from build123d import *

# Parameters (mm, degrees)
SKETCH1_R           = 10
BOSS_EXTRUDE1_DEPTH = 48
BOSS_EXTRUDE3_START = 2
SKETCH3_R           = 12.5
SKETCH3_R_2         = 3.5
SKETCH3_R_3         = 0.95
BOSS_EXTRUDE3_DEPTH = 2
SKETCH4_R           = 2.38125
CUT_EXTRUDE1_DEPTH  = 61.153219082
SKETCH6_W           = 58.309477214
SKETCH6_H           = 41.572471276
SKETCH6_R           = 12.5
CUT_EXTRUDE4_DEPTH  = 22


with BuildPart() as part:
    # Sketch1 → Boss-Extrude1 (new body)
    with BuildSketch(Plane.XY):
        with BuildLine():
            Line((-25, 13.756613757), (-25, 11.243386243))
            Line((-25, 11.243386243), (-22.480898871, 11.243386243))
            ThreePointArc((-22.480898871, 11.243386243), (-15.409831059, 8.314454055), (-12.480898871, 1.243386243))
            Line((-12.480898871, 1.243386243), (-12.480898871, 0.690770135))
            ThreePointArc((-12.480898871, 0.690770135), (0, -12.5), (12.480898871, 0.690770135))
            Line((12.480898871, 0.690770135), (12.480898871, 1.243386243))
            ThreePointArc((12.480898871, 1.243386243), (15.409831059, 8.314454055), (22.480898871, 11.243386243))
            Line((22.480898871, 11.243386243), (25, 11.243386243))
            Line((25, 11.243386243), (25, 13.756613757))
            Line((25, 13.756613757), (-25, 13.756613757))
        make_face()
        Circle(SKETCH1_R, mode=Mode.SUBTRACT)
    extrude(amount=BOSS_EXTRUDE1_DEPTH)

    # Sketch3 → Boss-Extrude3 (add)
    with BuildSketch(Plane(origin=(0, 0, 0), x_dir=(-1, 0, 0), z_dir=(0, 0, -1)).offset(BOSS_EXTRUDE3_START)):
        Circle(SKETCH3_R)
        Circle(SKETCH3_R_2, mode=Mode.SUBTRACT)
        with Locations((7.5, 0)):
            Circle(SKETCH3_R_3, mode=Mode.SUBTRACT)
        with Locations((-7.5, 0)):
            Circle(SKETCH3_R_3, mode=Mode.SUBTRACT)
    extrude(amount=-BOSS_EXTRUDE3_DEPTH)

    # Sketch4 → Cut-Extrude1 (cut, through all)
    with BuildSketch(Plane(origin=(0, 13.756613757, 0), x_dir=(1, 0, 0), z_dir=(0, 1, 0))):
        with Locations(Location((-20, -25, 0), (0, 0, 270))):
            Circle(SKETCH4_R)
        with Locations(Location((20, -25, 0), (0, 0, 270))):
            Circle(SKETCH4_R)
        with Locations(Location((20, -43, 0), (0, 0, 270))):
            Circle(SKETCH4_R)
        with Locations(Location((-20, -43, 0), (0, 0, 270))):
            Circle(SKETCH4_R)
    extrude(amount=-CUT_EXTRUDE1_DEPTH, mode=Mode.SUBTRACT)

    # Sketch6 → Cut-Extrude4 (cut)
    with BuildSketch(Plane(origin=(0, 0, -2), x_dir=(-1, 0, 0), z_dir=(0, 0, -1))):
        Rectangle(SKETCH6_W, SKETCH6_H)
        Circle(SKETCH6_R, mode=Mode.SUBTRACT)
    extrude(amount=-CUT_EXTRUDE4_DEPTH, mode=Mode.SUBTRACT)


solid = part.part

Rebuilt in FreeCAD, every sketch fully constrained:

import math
import FreeCAD as App
import Part
import Sketcher
from FreeCAD import Vector
Q = App.Units.Quantity


def add_polygon(sketch, points):
    """Adds a closed chain of lines whose ends are joined by coincident constraints."""
    first, n = sketch.GeometryCount, len(points)
    for a, b in zip(points, points[1:] + points[:1]):
        sketch.addGeometry(Part.LineSegment(App.Vector(*a, 0), App.Vector(*b, 0)), False)
    for i in range(n):
        sketch.addConstraint(Sketcher.Constraint("Coincident", first + i, 2, first + (i + 1) % n, 1))

doc = App.newDocument("Part")
body = doc.addObject("PartDesign::Body", "Body")

sketch1 = body.newObject("Sketcher::SketchObject", "Sketch")
sketch1.AttachmentSupport = (doc.getObject("XY_Plane"), [""])
sketch1.MapMode = "FlatFace"
sketch1.addGeometry(Part.LineSegment(Vector(-25, 13.8, 0), Vector(-25, 11.2, 0)), False)
sketch1.addGeometry(Part.LineSegment(Vector(-25, 11.2, 0), Vector(-22.5, 11.2, 0)), False)
sketch1.addGeometry(Part.ArcOfCircle(Part.Circle(Vector(-22.5, 1.2, 0), Vector(0, 0, 1), 10), math.radians(0), math.radians(90)), False)
sketch1.addGeometry(Part.LineSegment(Vector(-12.5, 1.2, 0), Vector(-12.5, 0.7, 0)), False)
sketch1.addGeometry(Part.ArcOfCircle(Part.Circle(Vector(0, 0, 0), Vector(0, 0, 1), 12.5), math.radians(177), math.radians(363)), False)
sketch1.addGeometry(Part.LineSegment(Vector(12.5, 0.7, 0), Vector(12.5, 1.2, 0)), False)
sketch1.addGeometry(Part.ArcOfCircle(Part.Circle(Vector(22.5, 1.2, 0), Vector(0, 0, 1), 10), math.radians(90), math.radians(180)), False)
sketch1.addGeometry(Part.LineSegment(Vector(22.5, 11.2, 0), Vector(25, 11.2, 0)), False)
sketch1.addGeometry(Part.LineSegment(Vector(25, 11.2, 0), Vector(25, 13.8, 0)), False)
sketch1.addGeometry(Part.LineSegment(Vector(25, 13.8, 0), Vector(-25, 13.8, 0)), False)
sketch1.addGeometry(Part.Circle(Vector(0, 0, 0), Vector(0, 0, 1), 10), False)
sketch1.addConstraint(Sketcher.Constraint("Coincident", 0, 2, 1, 1))
sketch1.addConstraint(Sketcher.Constraint("Tangent", 1, 2, 2, 2))
sketch1.addConstraint(Sketcher.Constraint("Tangent", 2, 1, 3, 1))
sketch1.addConstraint(Sketcher.Constraint("Coincident", 3, 2, 4, 1))
sketch1.addConstraint(Sketcher.Constraint("Coincident", 4, 2, 5, 1))
sketch1.addConstraint(Sketcher.Constraint("Tangent", 5, 2, 6, 2))
sketch1.addConstraint(Sketcher.Constraint("Tangent", 6, 1, 7, 1))
sketch1.addConstraint(Sketcher.Constraint("Coincident", 7, 2, 8, 1))
sketch1.addConstraint(Sketcher.Constraint("Coincident", 8, 2, 9, 1))
sketch1.addConstraint(Sketcher.Constraint("Coincident", 9, 2, 0, 1))
sketch1.addConstraint(Sketcher.Constraint("Vertical", 0))
sketch1.addConstraint(Sketcher.Constraint("Horizontal", 1))
sketch1.addConstraint(Sketcher.Constraint("Vertical", 3))
sketch1.addConstraint(Sketcher.Constraint("Vertical", 5))
sketch1.addConstraint(Sketcher.Constraint("Horizontal", 7))
sketch1.addConstraint(Sketcher.Constraint("Vertical", 8))
sketch1.addConstraint(Sketcher.Constraint("Horizontal", 9))
sketch1.addConstraint(Sketcher.Constraint("Coincident", 4, 3, -1, 1))
sketch1.addConstraint(Sketcher.Constraint("Coincident", 10, 3, -1, 1))
sketch1.addConstraint(Sketcher.Constraint("Equal", 2, 6))
sketch1.addConstraint(Sketcher.Constraint("Equal", 6, 10))
sketch1.addConstraint(Sketcher.Constraint("Symmetric", 2, 3, 6, 3, -2))
sketch1.addConstraint(Sketcher.Constraint("Equal", 1, 7))
sketch1.addConstraint(Sketcher.Constraint("Diameter", 10, Q("20 mm")))
sketch1.addConstraint(Sketcher.Constraint("Radius", 4, Q("12.5 mm")))
sketch1.addConstraint(Sketcher.Constraint("DistanceX", 9, 2, 9, 1, Q("50 mm")))
sketch1.addConstraint(Sketcher.Constraint("DistanceX", 1, 1, 1, 2, Q("2.519101 mm")))
sketch1.addConstraint(Sketcher.Constraint("DistanceY", 0, 2, 0, 1, Q("2.513228 mm")))
sketch1.addConstraint(Sketcher.Constraint("DistanceY", 3, 2, 3, 1, Q("0.552616 mm")))
pad1 = body.newObject("PartDesign::Pad", "Pad")
pad1.Profile = sketch1
pad1.Length = 48

sketch2 = body.newObject("Sketcher::SketchObject", "Sketch001")
sketch2.AttachmentSupport = (doc.getObject("XY_Plane"), [""])
sketch2.MapMode = "FlatFace"
sketch2.AttachmentOffset = App.Placement(Vector(0, 0, -2), App.Rotation())
sketch2.addGeometry(Part.Circle(Vector(0, 0, 0), Vector(0, 0, 1), 12.5), False)
sketch2.addGeometry(Part.Circle(Vector(7.5, 0, 0), Vector(0, 0, 1), 0.9), False)
sketch2.addGeometry(Part.Circle(Vector(0, 0, 0), Vector(0, 0, 1), 3.5), False)
sketch2.addGeometry(Part.Circle(Vector(-7.5, 0, 0), Vector(0, 0, 1), 0.9), False)
sketch2.addConstraint(Sketcher.Constraint("Coincident", 0, 3, -1, 1))
sketch2.addConstraint(Sketcher.Constraint("Coincident", 2, 3, -1, 1))
sketch2.addConstraint(Sketcher.Constraint("Equal", 1, 3))
sketch2.addConstraint(Sketcher.Constraint("Symmetric", 1, 3, 3, 3, -1, 1))
sketch2.addConstraint(Sketcher.Constraint("PointOnObject", 1, 3, -1))
sketch2.addConstraint(Sketcher.Constraint("Diameter", 0, Q("25 mm")))
sketch2.addConstraint(Sketcher.Constraint("Diameter", 2, Q("7 mm")))
sketch2.addConstraint(Sketcher.Constraint("Diameter", 1, Q("1.9 mm")))
sketch2.addConstraint(Sketcher.Constraint("DistanceX", 3, 3, 1, 3, Q("15 mm")))
pad2 = body.newObject("PartDesign::Pad", "Pad001")
pad2.Profile = sketch2
pad2.Length = 2

sketch3 = body.newObject("Sketcher::SketchObject", "Sketch002")
sketch3.AttachmentSupport = (doc.getObject("XZ_Plane"), [""])
sketch3.MapMode = "FlatFace"
sketch3.AttachmentOffset = App.Placement(Vector(0, 0, -13.756614), App.Rotation())
sketch3.addGeometry(Part.Circle(Vector(-20, 25, 0), Vector(0, 0, 1), 2.4), False)
sketch3.addGeometry(Part.Circle(Vector(20, 25, 0), Vector(0, 0, 1), 2.4), False)
sketch3.addGeometry(Part.Circle(Vector(20, 43, 0), Vector(0, 0, 1), 2.4), False)
sketch3.addGeometry(Part.Circle(Vector(-20, 43, 0), Vector(0, 0, 1), 2.4), False)
sketch3.addConstraint(Sketcher.Constraint("Equal", 0, 1))
sketch3.addConstraint(Sketcher.Constraint("Equal", 1, 2))
sketch3.addConstraint(Sketcher.Constraint("Equal", 2, 3))
sketch3.addConstraint(Sketcher.Constraint("Symmetric", 0, 3, 1, 3, -2))
sketch3.addConstraint(Sketcher.Constraint("Symmetric", 2, 3, 3, 3, -2))
sketch3.addConstraint(Sketcher.Constraint("Vertical", 1, 3, 2, 3))
sketch3.addConstraint(Sketcher.Constraint("DistanceX", 0, 3, -1, 1, Q("20 mm")))
sketch3.addConstraint(Sketcher.Constraint("DistanceY", -1, 1, 0, 3, Q("25 mm")))
sketch3.addConstraint(Sketcher.Constraint("DistanceY", -1, 1, 2, 3, Q("43 mm")))
sketch3.addConstraint(Sketcher.Constraint("Diameter", 0, Q("4.7625 mm")))
pocket1 = body.newObject("PartDesign::Pocket", "Pocket")
pocket1.Profile = sketch3
pocket1.Type = "ThroughAll"
pocket1.Reversed = True

sketch4 = body.newObject("Sketcher::SketchObject", "Sketch003")
sketch4.AttachmentSupport = (doc.getObject("XY_Plane"), [""])
sketch4.MapMode = "FlatFace"
sketch4.AttachmentOffset = App.Placement(Vector(0, 0, -2), App.Rotation())
add_polygon(sketch4, [(29, 21), (29, -21), (-29, -21), (-29, 21)])
sketch4.addGeometry(Part.Circle(Vector(0, 0, 0), Vector(0, 0, 1), 12), False)
sketch4.addConstraint(Sketcher.Constraint("Vertical", 0))
sketch4.addConstraint(Sketcher.Constraint("Horizontal", 1))
sketch4.addConstraint(Sketcher.Constraint("Vertical", 2))
sketch4.addConstraint(Sketcher.Constraint("Horizontal", 3))
sketch4.addConstraint(Sketcher.Constraint("Coincident", 4, 3, -1, 1))
sketch4.addConstraint(Sketcher.Constraint("Symmetric", 0, 2, 2, 2, -1, 1))
sketch4.addConstraint(Sketcher.Constraint("Diameter", 4, Q("25 mm")))
sketch4.addConstraint(Sketcher.Constraint("DistanceY", 0, 2, 0, 1, Q("41.572471 mm")))
sketch4.addConstraint(Sketcher.Constraint("DistanceX", 1, 2, 1, 1, Q("58.309477 mm")))
pocket2 = body.newObject("PartDesign::Pocket", "Pocket001")
pocket2.Profile = sketch4
pocket2.Length = 22
pocket2.Reversed = True

doc.recompute()
